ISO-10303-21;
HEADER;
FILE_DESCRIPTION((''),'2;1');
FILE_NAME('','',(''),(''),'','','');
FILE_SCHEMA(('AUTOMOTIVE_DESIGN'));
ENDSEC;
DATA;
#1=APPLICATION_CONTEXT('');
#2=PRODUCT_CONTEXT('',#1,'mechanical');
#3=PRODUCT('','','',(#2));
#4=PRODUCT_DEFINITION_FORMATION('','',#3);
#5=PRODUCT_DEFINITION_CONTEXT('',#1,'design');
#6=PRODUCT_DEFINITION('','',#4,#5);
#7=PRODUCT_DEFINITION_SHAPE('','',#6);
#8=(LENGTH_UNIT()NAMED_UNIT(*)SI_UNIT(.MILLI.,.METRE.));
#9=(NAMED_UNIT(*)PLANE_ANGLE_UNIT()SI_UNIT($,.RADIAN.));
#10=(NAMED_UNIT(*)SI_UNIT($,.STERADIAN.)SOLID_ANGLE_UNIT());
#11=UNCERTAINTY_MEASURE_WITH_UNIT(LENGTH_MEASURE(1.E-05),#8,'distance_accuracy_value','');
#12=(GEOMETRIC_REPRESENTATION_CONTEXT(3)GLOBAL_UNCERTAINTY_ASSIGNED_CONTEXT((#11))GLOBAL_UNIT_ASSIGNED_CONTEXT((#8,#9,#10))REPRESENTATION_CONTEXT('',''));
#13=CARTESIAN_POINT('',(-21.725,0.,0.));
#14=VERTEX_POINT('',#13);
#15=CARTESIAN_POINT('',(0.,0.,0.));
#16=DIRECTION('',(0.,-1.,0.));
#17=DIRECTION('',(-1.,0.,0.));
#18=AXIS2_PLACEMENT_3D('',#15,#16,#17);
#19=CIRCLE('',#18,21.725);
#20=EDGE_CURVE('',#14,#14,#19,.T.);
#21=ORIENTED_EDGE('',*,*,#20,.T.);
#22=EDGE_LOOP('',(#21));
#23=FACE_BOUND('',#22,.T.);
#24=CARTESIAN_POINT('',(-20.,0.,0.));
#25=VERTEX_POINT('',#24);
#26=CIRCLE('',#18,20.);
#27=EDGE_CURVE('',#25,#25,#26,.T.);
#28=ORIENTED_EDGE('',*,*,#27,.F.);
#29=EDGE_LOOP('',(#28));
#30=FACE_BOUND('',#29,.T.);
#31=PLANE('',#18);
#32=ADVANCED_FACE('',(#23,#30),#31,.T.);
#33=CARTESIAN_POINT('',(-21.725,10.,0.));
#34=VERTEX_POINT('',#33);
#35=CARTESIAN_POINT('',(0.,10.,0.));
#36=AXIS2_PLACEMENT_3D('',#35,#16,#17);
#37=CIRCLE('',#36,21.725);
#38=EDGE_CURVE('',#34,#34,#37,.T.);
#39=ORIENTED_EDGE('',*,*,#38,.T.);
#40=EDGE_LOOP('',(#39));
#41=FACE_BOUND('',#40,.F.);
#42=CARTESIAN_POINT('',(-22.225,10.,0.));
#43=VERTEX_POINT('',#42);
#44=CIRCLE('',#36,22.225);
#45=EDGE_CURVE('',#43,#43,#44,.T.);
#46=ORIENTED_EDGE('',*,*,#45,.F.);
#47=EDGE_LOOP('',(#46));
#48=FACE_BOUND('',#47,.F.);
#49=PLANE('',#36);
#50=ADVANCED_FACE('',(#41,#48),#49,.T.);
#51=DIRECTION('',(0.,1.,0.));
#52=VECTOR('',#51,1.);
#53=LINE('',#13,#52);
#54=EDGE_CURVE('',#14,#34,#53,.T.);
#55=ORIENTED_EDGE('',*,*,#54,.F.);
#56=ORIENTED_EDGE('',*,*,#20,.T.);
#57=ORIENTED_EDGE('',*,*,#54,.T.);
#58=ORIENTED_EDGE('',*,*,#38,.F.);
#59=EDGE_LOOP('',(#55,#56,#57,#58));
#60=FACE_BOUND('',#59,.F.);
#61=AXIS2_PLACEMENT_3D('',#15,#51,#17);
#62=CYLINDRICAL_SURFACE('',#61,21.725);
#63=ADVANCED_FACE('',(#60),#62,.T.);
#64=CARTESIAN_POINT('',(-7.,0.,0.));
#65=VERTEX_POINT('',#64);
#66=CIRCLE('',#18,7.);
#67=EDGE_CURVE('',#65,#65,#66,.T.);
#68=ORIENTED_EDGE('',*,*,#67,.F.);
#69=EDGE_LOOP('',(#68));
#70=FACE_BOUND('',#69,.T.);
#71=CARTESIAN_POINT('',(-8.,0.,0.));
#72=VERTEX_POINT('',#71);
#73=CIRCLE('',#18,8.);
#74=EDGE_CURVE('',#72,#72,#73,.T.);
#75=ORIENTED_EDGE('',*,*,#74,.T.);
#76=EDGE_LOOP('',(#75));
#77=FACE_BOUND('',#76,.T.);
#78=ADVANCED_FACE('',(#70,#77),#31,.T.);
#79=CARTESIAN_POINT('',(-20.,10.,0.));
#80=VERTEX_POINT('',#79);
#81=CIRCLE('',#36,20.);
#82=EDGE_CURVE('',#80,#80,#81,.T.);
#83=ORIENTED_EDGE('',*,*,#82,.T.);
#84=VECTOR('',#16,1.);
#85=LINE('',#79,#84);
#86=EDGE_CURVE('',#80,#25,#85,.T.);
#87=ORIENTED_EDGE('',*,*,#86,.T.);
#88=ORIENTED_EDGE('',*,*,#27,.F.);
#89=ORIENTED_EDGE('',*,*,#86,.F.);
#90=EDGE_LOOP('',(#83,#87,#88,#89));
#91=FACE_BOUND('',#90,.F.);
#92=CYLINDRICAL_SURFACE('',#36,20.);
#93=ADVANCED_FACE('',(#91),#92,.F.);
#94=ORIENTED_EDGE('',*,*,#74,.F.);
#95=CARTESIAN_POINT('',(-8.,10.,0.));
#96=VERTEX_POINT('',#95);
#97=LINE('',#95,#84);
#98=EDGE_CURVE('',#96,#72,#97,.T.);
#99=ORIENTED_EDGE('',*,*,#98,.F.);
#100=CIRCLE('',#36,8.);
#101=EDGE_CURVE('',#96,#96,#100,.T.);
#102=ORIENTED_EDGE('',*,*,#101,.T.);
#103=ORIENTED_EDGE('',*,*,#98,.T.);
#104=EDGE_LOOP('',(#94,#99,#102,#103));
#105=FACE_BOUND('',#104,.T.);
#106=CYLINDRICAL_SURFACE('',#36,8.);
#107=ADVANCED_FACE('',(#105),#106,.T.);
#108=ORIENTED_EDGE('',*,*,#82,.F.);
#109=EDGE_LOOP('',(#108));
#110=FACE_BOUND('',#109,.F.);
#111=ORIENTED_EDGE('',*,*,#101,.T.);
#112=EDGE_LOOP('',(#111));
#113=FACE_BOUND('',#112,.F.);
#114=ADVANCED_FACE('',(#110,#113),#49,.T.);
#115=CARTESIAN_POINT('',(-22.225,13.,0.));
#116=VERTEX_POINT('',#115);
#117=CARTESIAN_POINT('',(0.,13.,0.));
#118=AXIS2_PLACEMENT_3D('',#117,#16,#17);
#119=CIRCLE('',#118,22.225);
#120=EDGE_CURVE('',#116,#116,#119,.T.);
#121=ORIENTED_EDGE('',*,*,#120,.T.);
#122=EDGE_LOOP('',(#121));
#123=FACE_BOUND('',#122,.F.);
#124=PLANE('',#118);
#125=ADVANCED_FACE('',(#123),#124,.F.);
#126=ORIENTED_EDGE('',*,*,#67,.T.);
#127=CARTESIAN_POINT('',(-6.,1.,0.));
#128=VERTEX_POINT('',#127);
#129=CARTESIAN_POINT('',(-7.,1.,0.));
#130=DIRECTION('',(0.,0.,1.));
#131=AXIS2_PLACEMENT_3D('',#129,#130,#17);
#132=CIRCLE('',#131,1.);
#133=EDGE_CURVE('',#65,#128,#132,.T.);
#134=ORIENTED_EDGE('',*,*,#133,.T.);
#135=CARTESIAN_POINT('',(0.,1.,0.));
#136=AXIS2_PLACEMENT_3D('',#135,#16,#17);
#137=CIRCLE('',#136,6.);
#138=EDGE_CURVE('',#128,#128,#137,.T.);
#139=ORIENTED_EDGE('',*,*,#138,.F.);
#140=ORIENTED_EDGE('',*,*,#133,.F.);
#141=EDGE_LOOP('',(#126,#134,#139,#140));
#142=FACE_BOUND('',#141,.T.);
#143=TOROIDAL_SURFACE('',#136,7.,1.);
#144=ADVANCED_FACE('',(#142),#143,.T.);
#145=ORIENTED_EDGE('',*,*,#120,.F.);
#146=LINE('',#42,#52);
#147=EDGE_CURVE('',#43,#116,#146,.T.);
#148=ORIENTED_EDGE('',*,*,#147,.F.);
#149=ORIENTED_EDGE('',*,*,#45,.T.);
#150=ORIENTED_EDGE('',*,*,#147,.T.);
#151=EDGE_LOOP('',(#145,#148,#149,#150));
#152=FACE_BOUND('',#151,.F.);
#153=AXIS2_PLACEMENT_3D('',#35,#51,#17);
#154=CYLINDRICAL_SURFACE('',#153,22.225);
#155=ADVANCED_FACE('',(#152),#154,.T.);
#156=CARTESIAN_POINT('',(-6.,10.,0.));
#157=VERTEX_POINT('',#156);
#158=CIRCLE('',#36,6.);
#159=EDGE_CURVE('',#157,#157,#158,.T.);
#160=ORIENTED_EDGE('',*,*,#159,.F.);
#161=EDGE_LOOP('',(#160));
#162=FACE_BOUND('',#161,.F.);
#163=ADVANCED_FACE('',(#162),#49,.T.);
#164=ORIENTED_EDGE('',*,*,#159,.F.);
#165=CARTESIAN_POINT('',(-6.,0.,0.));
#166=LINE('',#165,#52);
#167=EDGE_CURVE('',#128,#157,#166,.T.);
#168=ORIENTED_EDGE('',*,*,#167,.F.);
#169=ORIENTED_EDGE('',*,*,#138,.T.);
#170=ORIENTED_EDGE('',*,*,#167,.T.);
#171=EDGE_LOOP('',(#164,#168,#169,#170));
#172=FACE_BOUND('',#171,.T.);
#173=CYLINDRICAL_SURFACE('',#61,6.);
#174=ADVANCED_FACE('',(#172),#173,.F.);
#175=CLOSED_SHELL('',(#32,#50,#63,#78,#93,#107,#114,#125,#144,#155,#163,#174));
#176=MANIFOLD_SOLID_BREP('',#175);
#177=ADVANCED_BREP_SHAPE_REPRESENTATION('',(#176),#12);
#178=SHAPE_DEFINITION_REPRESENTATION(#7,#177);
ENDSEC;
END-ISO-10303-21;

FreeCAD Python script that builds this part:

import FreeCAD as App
import Part
import Sketcher
from FreeCAD import Vector


def edges_at(feature, points):
    """Names of the edges that pass closest to the given points."""
    edges = feature.Shape.Edges
    near = lambda p: min(range(len(edges)), key=lambda i: edges[i].distToShape(Part.Vertex(*p))[0])
    return sorted({f"Edge{near(p) + 1}" for p in points})


def add_polygon(sketch, points):
    """Adds a closed chain of lines whose ends are joined by coincident constraints."""
    first, n = sketch.GeometryCount, len(points)
    for a, b in zip(points, points[1:] + points[:1]):
        sketch.addGeometry(Part.LineSegment(App.Vector(*a, 0), App.Vector(*b, 0)), False)
    for i in range(n):
        sketch.addConstraint(Sketcher.Constraint("Coincident", first + i, 2, first + (i + 1) % n, 1))

doc = App.newDocument("Part")
body = doc.addObject("PartDesign::Body", "Body")

# Sketch on XY plane
sketch1 = body.newObject("Sketcher::SketchObject", "Sketch")
sketch1.AttachmentSupport = (doc.getObject("XY_Plane"), [""])
sketch1.MapMode = "FlatFace"
add_polygon(sketch1, [(0, 13), (-22.2, 13), (-22.2, 10), (-21.7, 10), (-21.7, 0), (-20, 0), (-20, 10), (-8, 10), (-8, 0), (-6, 0), (-6, 10), (0, 10)])  # lines 0-11
sketch1.addConstraint(Sketcher.Constraint("Horizontal", 0))
sketch1.addConstraint(Sketcher.Constraint("Vertical", 1))
sketch1.addConstraint(Sketcher.Constraint("Horizontal", 2))
sketch1.addConstraint(Sketcher.Constraint("Vertical", 3))
sketch1.addConstraint(Sketcher.Constraint("Horizontal", 4))
sketch1.addConstraint(Sketcher.Constraint("Vertical", 5))
sketch1.addConstraint(Sketcher.Constraint("Horizontal", 6))
sketch1.addConstraint(Sketcher.Constraint("Vertical", 7))
sketch1.addConstraint(Sketcher.Constraint("Horizontal", 8))
sketch1.addConstraint(Sketcher.Constraint("Vertical", 9))
sketch1.addConstraint(Sketcher.Constraint("Horizontal", 10))
sketch1.addConstraint(Sketcher.Constraint("Vertical", 11))
sketch1.addConstraint(Sketcher.Constraint("PointOnObject", 3, 2, -1))
sketch1.addConstraint(Sketcher.Constraint("PointOnObject", 7, 2, -1))
sketch1.addConstraint(Sketcher.Constraint("PointOnObject", 10, 2, -2))
sketch1.addConstraint(Sketcher.Constraint("Horizontal", 2, 2, 5, 2))
sketch1.addConstraint(Sketcher.Constraint("Horizontal", 6, 2, 9, 2))
sketch1.addConstraint(Sketcher.Constraint("DistanceX", 8, 1, 8, 2, 2.0))
sketch1.addConstraint(Sketcher.Constraint("DistanceY", 1, 2, 1, 1, 3.0))
sketch1.addConstraint(Sketcher.Constraint("DistanceY", 3, 2, 3, 1, 10.0))
sketch1.addConstraint(Sketcher.Constraint("DistanceX", 2, 1, 2, 2, 0.5))
sketch1.addConstraint(Sketcher.Constraint("DistanceX", 4, 2, -1, 1, 20.0))
sketch1.addConstraint(Sketcher.Constraint("DistanceX", 6, 2, -1, 1, 8.0))
sketch1.addConstraint(Sketcher.Constraint("DistanceX", 0, 2, 0, 1, 22.225))
revolution = body.newObject("PartDesign::Revolution", "Revolution")
revolution.Profile = sketch1
revolution.ReferenceAxis = (sketch1, ["V_Axis"])
revolution.Angle = 360
doc.recompute()

fillet = body.newObject("PartDesign::Fillet", "Fillet")
fillet.Base = (revolution, edges_at(revolution, [(6, 0, 0)]))
fillet.Radius = 1

doc.recompute()
